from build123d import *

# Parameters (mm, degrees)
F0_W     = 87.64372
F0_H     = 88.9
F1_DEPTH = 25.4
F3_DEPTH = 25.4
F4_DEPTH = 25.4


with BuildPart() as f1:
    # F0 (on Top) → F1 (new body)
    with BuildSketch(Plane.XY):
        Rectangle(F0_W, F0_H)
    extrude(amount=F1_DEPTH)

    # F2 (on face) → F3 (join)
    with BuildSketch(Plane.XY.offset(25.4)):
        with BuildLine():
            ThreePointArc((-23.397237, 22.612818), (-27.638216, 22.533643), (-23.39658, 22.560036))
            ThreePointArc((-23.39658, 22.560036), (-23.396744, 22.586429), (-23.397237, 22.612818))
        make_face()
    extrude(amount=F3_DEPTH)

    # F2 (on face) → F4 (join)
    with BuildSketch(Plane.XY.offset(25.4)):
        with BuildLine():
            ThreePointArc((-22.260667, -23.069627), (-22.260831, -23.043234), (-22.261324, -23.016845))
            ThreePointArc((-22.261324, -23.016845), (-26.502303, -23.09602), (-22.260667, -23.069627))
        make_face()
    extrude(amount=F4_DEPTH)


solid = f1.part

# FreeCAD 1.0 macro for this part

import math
import FreeCAD as App
import Part
import Sketcher
Q = App.Units.Quantity

doc = App.newDocument("Part")
body = doc.addObject("PartDesign::Body", "Body")

# Sketch on XY plane
sketch1 = doc.addObject("Sketcher::SketchObject", "Sketch")
body.addObject(sketch1)
sketch1.AttachmentSupport = (doc.XY_Plane, [""])
sketch1.MapMode = "FlatFace"
sketch1.addGeometry([
    Part.LineSegment(App.Vector(-44, 44, 0), App.Vector(-44, -44, 0)),
    Part.LineSegment(App.Vector(-44, -44, 0), App.Vector(44, -44, 0)),
    Part.LineSegment(App.Vector(44, -44, 0), App.Vector(44, 44, 0)),
    Part.LineSegment(App.Vector(44, 44, 0), App.Vector(-44, 44, 0)),
], False)
sketch1.addConstraint([
    Sketcher.Constraint("Coincident", 0, 2, 1, 1),
    Sketcher.Constraint("Coincident", 1, 2, 2, 1),
    Sketcher.Constraint("Coincident", 2, 2, 3, 1),
    Sketcher.Constraint("Coincident", 3, 2, 0, 1),
    Sketcher.Constraint("Vertical", 0),
    Sketcher.Constraint("Horizontal", 1),
    Sketcher.Constraint("Vertical", 2),
    Sketcher.Constraint("Horizontal", 3),
    Sketcher.Constraint("Symmetric", 0, 2, 2, 2, -1, 1),
    Sketcher.Constraint("DistanceY", 0, 2, 0, 1, Q("3.5 in")),
    Sketcher.Constraint("DistanceX", 1, 1, 1, 2, Q("87.64372 mm")),
])
pad1 = doc.addObject("PartDesign::Pad", "Pad")
body.addObject(pad1)
pad1.Profile = sketch1
pad1.Length = Q("1 in")

# Sketch on XY plane
sketch2 = doc.addObject("Sketcher::SketchObject", "Sketch001")
body.addObject(sketch2)
sketch2.AttachmentSupport = (doc.XY_Plane, [""])
sketch2.MapMode = "FlatFace"
sketch2.AttachmentOffset = App.Placement(App.Vector(0, 0, 1 * 25.4), App.Rotation())
sketch2.addGeometry([
    Part.ArcOfCircle(Part.Circle(App.Vector(-25.52, 22.56, 0), App.Vector(0, 0, 1), 2.12), math.radians(1), math.radians(360)),
    Part.ArcOfCircle(Part.Circle(App.Vector(-25.51, 22.56, 0), App.Vector(0, 0, 1), 2.12), math.radians(0), math.radians(1.43)),
], False)
sketch2.addConstraint([
    Sketcher.Constraint("Coincident", 0, 1, 1, 2),
    Sketcher.Constraint("Coincident", 1, 1, 0, 2),
    Sketcher.Constraint("Radius", 0, Q("0.0835 in")),
    Sketcher.Constraint("Radius", 1, Q("2.117229 mm")),
    Sketcher.Constraint("DistanceX", 0, 3, -1, 1, Q("25.51748 mm")),
    Sketcher.Constraint("DistanceY", -1, 1, 0, 3, Q("22.560031 mm")),
    Sketcher.Constraint("DistanceY", -1, 1, 0, 1, Q("22.612818 mm")),
    Sketcher.Constraint("DistanceY", -1, 1, 1, 1, Q("22.560036 mm")),
])
pad2 = doc.addObject("PartDesign::Pad", "Pad001")
body.addObject(pad2)
pad2.Profile = sketch2
pad2.Length = Q("1 in")

# Sketch on XY plane
sketch3 = doc.addObject("Sketcher::SketchObject", "Sketch002")
body.addObject(sketch3)
sketch3.AttachmentSupport = (doc.XY_Plane, [""])
sketch3.MapMode = "FlatFace"
sketch3.AttachmentOffset = App.Placement(App.Vector(0, 0, 1 * 25.4), App.Rotation())
sketch3.addGeometry([
    Part.ArcOfCircle(Part.Circle(App.Vector(-24.38, -23.07, 0), App.Vector(0, 0, 1), 2.12), math.radians(0), math.radians(1.43)),
    Part.ArcOfCircle(Part.Circle(App.Vector(-24.38, -23.07, 0), App.Vector(0, 0, 1), 2.12), math.radians(1), math.radians(360)),
], False)
sketch3.addConstraint([
    Sketcher.Constraint("Coincident", 0, 1, 1, 2),
    Sketcher.Constraint("Coincident", 1, 1, 0, 2),
    Sketcher.Constraint("Radius", 1, Q("0.0835 in")),
    Sketcher.Constraint("Radius", 0, Q("2.117229 mm")),
    Sketcher.Constraint("DistanceY", 1, 3, -1, 1, Q("23.069632 mm")),
    Sketcher.Constraint("DistanceY", 0, 3, 1, 1, Q("0.052741 mm")),
    Sketcher.Constraint("DistanceX", 0, 3, -1, 1, Q("24.377896 mm")),
    Sketcher.Constraint("DistanceY", 0, 1, -1, 1, Q("23.069627 mm")),
])
pad3 = doc.addObject("PartDesign::Pad", "Pad002")
body.addObject(pad3)
pad3.Profile = sketch3
pad3.Length = Q("1 in")

doc.recompute()
